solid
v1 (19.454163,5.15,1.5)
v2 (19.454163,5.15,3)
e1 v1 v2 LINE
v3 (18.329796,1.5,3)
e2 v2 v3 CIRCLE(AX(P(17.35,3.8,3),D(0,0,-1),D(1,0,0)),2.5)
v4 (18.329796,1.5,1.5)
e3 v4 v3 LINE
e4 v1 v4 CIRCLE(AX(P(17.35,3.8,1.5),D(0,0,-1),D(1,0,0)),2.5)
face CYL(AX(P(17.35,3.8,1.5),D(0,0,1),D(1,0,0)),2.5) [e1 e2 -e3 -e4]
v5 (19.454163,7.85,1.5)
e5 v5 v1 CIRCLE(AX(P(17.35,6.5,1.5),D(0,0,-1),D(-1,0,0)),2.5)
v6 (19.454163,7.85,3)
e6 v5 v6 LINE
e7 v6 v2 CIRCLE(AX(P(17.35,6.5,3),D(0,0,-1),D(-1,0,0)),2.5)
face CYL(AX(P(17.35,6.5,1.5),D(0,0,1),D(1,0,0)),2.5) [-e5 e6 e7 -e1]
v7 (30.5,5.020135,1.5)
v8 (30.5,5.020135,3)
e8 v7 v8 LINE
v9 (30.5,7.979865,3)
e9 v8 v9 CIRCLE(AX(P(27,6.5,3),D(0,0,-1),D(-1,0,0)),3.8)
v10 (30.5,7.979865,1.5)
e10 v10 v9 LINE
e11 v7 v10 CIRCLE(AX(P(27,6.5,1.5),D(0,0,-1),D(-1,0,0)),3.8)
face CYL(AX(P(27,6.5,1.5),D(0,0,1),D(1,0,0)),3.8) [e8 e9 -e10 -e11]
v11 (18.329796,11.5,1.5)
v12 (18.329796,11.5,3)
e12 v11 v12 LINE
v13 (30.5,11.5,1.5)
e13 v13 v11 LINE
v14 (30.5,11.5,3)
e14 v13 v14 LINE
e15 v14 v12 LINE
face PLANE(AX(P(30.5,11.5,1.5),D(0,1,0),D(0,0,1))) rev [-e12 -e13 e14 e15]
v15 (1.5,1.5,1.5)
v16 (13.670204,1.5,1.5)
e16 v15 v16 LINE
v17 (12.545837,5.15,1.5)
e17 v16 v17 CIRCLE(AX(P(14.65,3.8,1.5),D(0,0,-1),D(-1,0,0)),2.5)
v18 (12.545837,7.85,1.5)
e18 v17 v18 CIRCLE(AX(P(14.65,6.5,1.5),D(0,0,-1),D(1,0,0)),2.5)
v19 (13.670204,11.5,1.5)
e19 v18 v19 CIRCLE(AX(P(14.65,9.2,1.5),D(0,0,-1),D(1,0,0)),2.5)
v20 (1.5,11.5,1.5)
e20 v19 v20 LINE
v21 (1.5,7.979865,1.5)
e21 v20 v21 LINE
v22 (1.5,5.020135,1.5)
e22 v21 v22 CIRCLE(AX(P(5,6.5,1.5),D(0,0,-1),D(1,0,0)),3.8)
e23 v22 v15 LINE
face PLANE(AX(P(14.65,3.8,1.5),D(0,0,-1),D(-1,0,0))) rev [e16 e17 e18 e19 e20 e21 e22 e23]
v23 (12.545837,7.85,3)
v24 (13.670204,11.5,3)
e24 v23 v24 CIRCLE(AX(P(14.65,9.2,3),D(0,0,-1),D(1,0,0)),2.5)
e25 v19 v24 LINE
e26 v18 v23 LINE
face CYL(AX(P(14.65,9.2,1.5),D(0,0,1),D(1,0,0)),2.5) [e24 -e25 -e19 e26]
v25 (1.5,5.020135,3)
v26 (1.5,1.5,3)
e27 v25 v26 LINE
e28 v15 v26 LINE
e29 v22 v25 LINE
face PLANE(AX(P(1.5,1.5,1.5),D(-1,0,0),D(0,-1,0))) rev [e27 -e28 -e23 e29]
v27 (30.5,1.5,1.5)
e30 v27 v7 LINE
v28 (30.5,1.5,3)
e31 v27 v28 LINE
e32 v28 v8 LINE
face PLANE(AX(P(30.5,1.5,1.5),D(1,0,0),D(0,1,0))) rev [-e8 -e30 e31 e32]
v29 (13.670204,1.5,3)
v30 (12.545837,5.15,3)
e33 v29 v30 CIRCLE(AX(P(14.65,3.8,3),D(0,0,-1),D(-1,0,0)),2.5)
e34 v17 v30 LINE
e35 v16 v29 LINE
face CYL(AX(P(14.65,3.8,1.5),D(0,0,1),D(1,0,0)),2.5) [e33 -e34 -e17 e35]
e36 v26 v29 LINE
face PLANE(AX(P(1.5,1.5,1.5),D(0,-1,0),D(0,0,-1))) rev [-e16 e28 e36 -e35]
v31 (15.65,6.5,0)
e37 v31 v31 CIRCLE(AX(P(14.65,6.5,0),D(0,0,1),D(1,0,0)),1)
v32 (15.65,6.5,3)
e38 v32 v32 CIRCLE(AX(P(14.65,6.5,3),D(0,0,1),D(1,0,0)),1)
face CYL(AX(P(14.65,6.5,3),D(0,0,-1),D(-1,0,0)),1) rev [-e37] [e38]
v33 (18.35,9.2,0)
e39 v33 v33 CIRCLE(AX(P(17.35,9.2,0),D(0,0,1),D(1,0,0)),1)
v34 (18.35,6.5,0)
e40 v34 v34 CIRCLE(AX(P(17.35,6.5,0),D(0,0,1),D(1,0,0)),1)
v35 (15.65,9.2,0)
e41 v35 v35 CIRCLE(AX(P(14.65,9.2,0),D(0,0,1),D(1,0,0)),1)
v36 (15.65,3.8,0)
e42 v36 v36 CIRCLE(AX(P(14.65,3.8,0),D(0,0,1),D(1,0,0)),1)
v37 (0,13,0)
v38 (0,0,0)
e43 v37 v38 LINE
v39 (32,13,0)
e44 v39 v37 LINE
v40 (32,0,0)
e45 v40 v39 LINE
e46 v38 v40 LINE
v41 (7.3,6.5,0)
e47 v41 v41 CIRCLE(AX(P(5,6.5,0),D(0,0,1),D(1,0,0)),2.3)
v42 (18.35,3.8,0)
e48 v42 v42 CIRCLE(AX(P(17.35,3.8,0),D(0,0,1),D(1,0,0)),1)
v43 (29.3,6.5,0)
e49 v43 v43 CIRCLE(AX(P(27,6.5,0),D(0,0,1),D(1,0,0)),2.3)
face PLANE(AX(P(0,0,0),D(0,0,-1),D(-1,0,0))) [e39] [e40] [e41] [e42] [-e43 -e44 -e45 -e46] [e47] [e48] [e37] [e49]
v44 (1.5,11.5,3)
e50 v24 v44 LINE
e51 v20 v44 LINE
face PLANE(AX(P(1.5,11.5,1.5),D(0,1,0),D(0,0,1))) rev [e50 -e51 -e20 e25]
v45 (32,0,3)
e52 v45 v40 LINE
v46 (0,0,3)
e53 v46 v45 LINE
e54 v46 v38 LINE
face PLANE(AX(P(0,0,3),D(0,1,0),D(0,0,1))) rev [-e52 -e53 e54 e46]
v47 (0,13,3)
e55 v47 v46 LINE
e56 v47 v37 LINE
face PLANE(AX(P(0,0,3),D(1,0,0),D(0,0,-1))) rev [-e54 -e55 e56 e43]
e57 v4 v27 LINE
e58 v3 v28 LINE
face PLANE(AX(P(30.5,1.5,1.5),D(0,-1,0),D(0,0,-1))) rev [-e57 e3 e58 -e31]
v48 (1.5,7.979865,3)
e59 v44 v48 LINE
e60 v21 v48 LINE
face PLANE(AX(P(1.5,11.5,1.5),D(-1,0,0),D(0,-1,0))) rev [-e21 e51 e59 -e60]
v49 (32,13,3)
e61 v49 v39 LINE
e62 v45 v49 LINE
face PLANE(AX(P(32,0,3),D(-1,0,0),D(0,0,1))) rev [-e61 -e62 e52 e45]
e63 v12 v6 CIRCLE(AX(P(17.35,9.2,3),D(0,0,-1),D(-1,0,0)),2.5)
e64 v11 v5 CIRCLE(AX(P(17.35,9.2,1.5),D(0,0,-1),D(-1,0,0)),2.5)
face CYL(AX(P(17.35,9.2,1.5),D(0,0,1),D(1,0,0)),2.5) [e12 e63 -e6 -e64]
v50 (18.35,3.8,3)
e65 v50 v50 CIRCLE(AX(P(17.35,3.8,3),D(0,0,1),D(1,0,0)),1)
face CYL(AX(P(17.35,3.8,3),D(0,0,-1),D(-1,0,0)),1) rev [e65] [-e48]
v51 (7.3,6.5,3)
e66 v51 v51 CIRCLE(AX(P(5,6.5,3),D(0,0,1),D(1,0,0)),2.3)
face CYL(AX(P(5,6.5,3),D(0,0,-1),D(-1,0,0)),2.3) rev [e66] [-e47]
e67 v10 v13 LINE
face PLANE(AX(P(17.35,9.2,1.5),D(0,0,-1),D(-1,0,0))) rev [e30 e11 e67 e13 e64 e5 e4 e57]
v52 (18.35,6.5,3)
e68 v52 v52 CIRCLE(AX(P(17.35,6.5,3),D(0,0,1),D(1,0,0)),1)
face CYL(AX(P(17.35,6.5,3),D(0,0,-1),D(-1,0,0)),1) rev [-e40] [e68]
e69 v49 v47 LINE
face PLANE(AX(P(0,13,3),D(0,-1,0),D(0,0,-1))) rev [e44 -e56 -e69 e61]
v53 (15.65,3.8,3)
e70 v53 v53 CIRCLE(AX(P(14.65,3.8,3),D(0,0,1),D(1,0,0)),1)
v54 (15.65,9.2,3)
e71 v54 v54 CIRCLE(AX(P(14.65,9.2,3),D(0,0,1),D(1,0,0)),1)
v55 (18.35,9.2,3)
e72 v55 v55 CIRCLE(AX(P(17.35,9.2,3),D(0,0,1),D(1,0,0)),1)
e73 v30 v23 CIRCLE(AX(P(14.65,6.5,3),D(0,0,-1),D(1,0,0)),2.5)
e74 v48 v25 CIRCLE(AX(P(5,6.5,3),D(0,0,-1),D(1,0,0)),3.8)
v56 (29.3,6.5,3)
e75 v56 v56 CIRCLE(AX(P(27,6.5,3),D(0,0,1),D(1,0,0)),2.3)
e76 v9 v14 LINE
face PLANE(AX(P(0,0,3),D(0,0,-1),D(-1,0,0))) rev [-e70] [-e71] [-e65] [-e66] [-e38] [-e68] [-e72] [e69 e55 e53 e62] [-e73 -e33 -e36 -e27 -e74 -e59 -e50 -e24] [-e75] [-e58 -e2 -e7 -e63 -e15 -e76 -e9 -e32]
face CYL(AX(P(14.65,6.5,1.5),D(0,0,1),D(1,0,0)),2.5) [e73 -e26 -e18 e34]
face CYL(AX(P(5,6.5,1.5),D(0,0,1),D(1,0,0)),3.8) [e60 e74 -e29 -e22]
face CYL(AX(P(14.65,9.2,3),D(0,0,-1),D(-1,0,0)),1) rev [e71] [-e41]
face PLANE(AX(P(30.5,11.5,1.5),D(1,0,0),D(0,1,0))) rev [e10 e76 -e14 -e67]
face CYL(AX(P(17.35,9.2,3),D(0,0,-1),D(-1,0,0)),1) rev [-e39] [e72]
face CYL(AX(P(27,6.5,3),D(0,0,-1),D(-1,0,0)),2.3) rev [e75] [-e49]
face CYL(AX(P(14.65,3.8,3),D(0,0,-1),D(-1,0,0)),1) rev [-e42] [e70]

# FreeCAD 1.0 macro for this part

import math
import FreeCAD as App
import Part
import Sketcher
Q = App.Units.Quantity

doc = App.newDocument("Part")
params = doc.addObject("Spreadsheet::Sheet", "Params")
for row, (alias, value) in enumerate([
    ("sketch1_diameter", "2 mm"),
    ("sketch1_diameter2", "4.6 mm"),
    ("sketch1_width", "32 mm"),
    ("sketch1_height", "13 mm"),
    ("pad1_length", "3 mm"),
    ("sketch2_radius", "3.8 mm"),
    ("sketch2_radius2", "2.5 mm"),
    ("pocket1_length", "1.5 mm"),
], start=1):
    params.set(f"A{row}", alias)
    params.set(f"B{row}", "=" + value)
    params.setAlias(f"B{row}", alias)

body = doc.addObject("PartDesign::Body", "Body")

sketch1 = doc.addObject("Sketcher::SketchObject", "Sketch")
body.addObject(sketch1)
sketch1.AttachmentSupport = (doc.XY_Plane, [""])
sketch1.MapMode = "FlatFace"
sketch1.addGeometry([
    Part.LineSegment(App.Vector(0, 13, 0), App.Vector(0, 0, 0)),
    Part.LineSegment(App.Vector(0, 0, 0), App.Vector(32, 0, 0)),
    Part.LineSegment(App.Vector(32, 0, 0), App.Vector(32, 13, 0)),
    Part.LineSegment(App.Vector(32, 13, 0), App.Vector(0, 13, 0)),
    Part.Circle(App.Vector(14.7, 3.8, 0), App.Vector(0, 0, 1), 1),
    Part.Circle(App.Vector(17.4, 3.8, 0), App.Vector(0, 0, 1), 1),
    Part.Circle(App.Vector(5, 6.5, 0), App.Vector(0, 0, 1), 2.3),
    Part.Circle(App.Vector(14.7, 6.5, 0), App.Vector(0, 0, 1), 1),
    Part.Circle(App.Vector(14.7, 9.2, 0), App.Vector(0, 0, 1), 1),
    Part.Circle(App.Vector(17.4, 6.5, 0), App.Vector(0, 0, 1), 1),
    Part.Circle(App.Vector(27, 6.5, 0), App.Vector(0, 0, 1), 2.3),
    Part.Circle(App.Vector(17.4, 9.2, 0), App.Vector(0, 0, 1), 1),
], False)
sketch1.addConstraint([
    Sketcher.Constraint("Coincident", 0, 2, 1, 1),
    Sketcher.Constraint("Coincident", 1, 2, 2, 1),
    Sketcher.Constraint("Coincident", 2, 2, 3, 1),
    Sketcher.Constraint("Coincident", 3, 2, 0, 1),
    Sketcher.Constraint("Vertical", 0),
    Sketcher.Constraint("Horizontal", 1),
    Sketcher.Constraint("Vertical", 2),
    Sketcher.Constraint("Horizontal", 3),
    Sketcher.Constraint("Coincident", 0, 2, -1, 1),
    Sketcher.Constraint("Equal", 4, 5),
    Sketcher.Constraint("Equal", 5, 7),
    Sketcher.Constraint("Equal", 7, 8),
    Sketcher.Constraint("Equal", 8, 9),
    Sketcher.Constraint("Equal", 6, 10),
    Sketcher.Constraint("Equal", 9, 11),
    Sketcher.Constraint("Horizontal", 4, 3, 5, 3),
    Sketcher.Constraint("Horizontal", 6, 3, 7, 3),
    Sketcher.Constraint("Horizontal", 7, 3, 9, 3),
    Sketcher.Constraint("Horizontal", 9, 3, 10, 3),
    Sketcher.Constraint("Horizontal", 8, 3, 11, 3),
    Sketcher.Constraint("Vertical", 4, 3, 7, 3),
    Sketcher.Constraint("Vertical", 7, 3, 8, 3),
    Sketcher.Constraint("Vertical", 5, 3, 9, 3),
    Sketcher.Constraint("Vertical", 9, 3, 11, 3),
    Sketcher.Constraint("Diameter", 4, Q("2 mm")),
    Sketcher.Constraint("Diameter", 6, Q("4.6 mm")),
    Sketcher.Constraint("DistanceX", 1, 1, 1, 2, Q("32 mm")),
    Sketcher.Constraint("DistanceY", 0, 2, 0, 1, Q("13 mm")),
    Sketcher.Constraint("DistanceX", -1, 1, 6, 3, Q("5 mm")),
    Sketcher.Constraint("DistanceX", -1, 1, 10, 3, Q("27 mm")),
    Sketcher.Constraint("DistanceY", -1, 1, 4, 3, Q("3.8 mm")),
    Sketcher.Constraint("DistanceY", -1, 1, 6, 3, Q("6.5 mm")),
    Sketcher.Constraint("DistanceY", -1, 1, 8, 3, Q("9.2 mm")),
    Sketcher.Constraint("DistanceX", 4, 3, 5, 3, Q("2.7 mm")),
    Sketcher.Constraint("DistanceX", -1, 1, 4, 3, Q("14.65 mm")),
])
sketch1.setExpression("Constraints[24]", "Params.sketch1_diameter")
sketch1.setExpression("Constraints[25]", "Params.sketch1_diameter2")
sketch1.setExpression("Constraints[26]", "Params.sketch1_width")
sketch1.setExpression("Constraints[27]", "Params.sketch1_height")
pad1 = doc.addObject("PartDesign::Pad", "Pad")
body.addObject(pad1)
pad1.Profile = sketch1
pad1.setExpression("Length", "Params.pad1_length")

sketch2 = doc.addObject("Sketcher::SketchObject", "Sketch001")
body.addObject(sketch2)
sketch2.AttachmentSupport = (doc.XY_Plane, [""])
sketch2.MapMode = "FlatFace"
sketch2.AttachmentOffset = App.Placement(App.Vector(0, 0, 3), App.Rotation())
sketch2.addGeometry([
    Part.LineSegment(App.Vector(13.7, 11.5, 0), App.Vector(1.5, 11.5, 0)),
    Part.LineSegment(App.Vector(1.5, 11.5, 0), App.Vector(1.5, 8, 0)),
    Part.ArcOfCircle(Part.Circle(App.Vector(5, 6.5, 0), App.Vector(0, 0, 1), 3.8), math.radians(-157), math.radians(157)),
    Part.LineSegment(App.Vector(1.5, 5, 0), App.Vector(1.5, 1.5, 0)),
    Part.LineSegment(App.Vector(1.5, 1.5, 0), App.Vector(13.7, 1.5, 0)),
    Part.ArcOfCircle(Part.Circle(App.Vector(14.7, 3.8, 0), App.Vector(0, 0, 1), 2.5), math.radians(147), math.radians(247)),
    Part.ArcOfCircle(Part.Circle(App.Vector(14.6, 6.5, 0), App.Vector(0, 0, 1), 2.5), math.radians(147), math.radians(213)),
    Part.ArcOfCircle(Part.Circle(App.Vector(14.7, 9.2, 0), App.Vector(0, 0, 1), 2.5), math.radians(113), math.radians(213)),
    Part.LineSegment(App.Vector(18.3, 1.5, 0), App.Vector(30.5, 1.5, 0)),
    Part.LineSegment(App.Vector(30.5, 1.5, 0), App.Vector(30.5, 5, 0)),
    Part.ArcOfCircle(Part.Circle(App.Vector(27, 6.5, 0), App.Vector(0, 0, 1), 3.8), math.radians(23), math.radians(337)),
    Part.LineSegment(App.Vector(30.5, 8, 0), App.Vector(30.5, 11.5, 0)),
    Part.LineSegment(App.Vector(30.5, 11.5, 0), App.Vector(18.3, 11.5, 0)),
    Part.ArcOfCircle(Part.Circle(App.Vector(17.4, 9.2, 0), App.Vector(0, 0, 1), 2.5), math.radians(-33), math.radians(67)),
    Part.ArcOfCircle(Part.Circle(App.Vector(17.4, 6.5, 0), App.Vector(0, 0, 1), 2.5), math.radians(-33), math.radians(33)),
    Part.ArcOfCircle(Part.Circle(App.Vector(17.4, 3.8, 0), App.Vector(0, 0, 1), 2.5), math.radians(-67), math.radians(33)),
], False)
sketch2.addConstraint([
    Sketcher.Constraint("Coincident", 0, 2, 1, 1),
    Sketcher.Constraint("Coincident", 1, 2, 2, 2),
    Sketcher.Constraint("Coincident", 2, 1, 3, 1),
    Sketcher.Constraint("Coincident", 3, 2, 4, 1),
    Sketcher.Constraint("Coincident", 4, 2, 5, 2),
    Sketcher.Constraint("Coincident", 5, 1, 6, 2),
    Sketcher.Constraint("Coincident", 6, 1, 7, 2),
    Sketcher.Constraint("Coincident", 7, 1, 0, 1),
    Sketcher.Constraint("Coincident", 8, 2, 9, 1),
    Sketcher.Constraint("Coincident", 9, 2, 10, 2),
    Sketcher.Constraint("Coincident", 10, 1, 11, 1),
    Sketcher.Constraint("Coincident", 11, 2, 12, 1),
    Sketcher.Constraint("Coincident", 12, 2, 13, 2),
    Sketcher.Constraint("Coincident", 13, 1, 14, 2),
    Sketcher.Constraint("Coincident", 14, 1, 15, 2),
    Sketcher.Constraint("Coincident", 15, 1, 8, 1),
    Sketcher.Constraint("Horizontal", 0),
    Sketcher.Constraint("Vertical", 1),
    Sketcher.Constraint("Vertical", 3),
    Sketcher.Constraint("Horizontal", 4),
    Sketcher.Constraint("Horizontal", 8),
    Sketcher.Constraint("Vertical", 9),
    Sketcher.Constraint("Vertical", 11),
    Sketcher.Constraint("Horizontal", 12),
    Sketcher.Constraint("Equal", 5, 6),
    Sketcher.Constraint("Equal", 6, 7),
    Sketcher.Constraint("Equal", 2, 10),
    Sketcher.Constraint("Equal", 7, 13),
    Sketcher.Constraint("Equal", 13, 14),
    Sketcher.Constraint("Equal", 14, 15),
    Sketcher.Constraint("Horizontal", 2, 3, 6, 3),
    Sketcher.Constraint("Horizontal", 6, 3, 10, 3),
    Sketcher.Constraint("Horizontal", 7, 3, 13, 3),
    Sketcher.Constraint("Horizontal", 10, 3, 14, 3),
    Sketcher.Constraint("Horizontal", 5, 3, 15, 3),
    Sketcher.Constraint("Horizontal", 4, 2, 8, 2),
    Sketcher.Constraint("Horizontal", 2, 1, 9, 2),
    Sketcher.Constraint("Horizontal", 1, 2, 10, 1),
    Sketcher.Constraint("Horizontal", 7, 1, 11, 2),
    Sketcher.Constraint("Horizontal", 6, 1, 13, 1),
    Sketcher.Constraint("Horizontal", 5, 1, 14, 1),
    Sketcher.Constraint("Vertical", 5, 3, 6, 3),
    Sketcher.Constraint("Vertical", 6, 3, 7, 3),
    Sketcher.Constraint("Vertical", 1, 2, 2, 1),
    Sketcher.Constraint("Vertical", 5, 1, 6, 1),
    Sketcher.Constraint("Vertical", 4, 2, 7, 1),
    Sketcher.Constraint("Equal", 4, 8),
    Sketcher.Constraint("Radius", 2, Q("3.8 mm")),
    Sketcher.Constraint("Radius", 5, Q("2.5 mm")),
    Sketcher.Constraint("DistanceX", -1, 1, 2, 3, Q("5 mm")),
    Sketcher.Constraint("DistanceX", -1, 1, 10, 3, Q("27 mm")),
    Sketcher.Constraint("DistanceY", 2, 3, 0, 2, Q("5 mm")),
    Sketcher.Constraint("DistanceY", -1, 1, 2, 3, Q("6.5 mm")),
    Sketcher.Constraint("DistanceY", -1, 1, 5, 3, Q("3.8 mm")),
    Sketcher.Constraint("DistanceX", -1, 1, 0, 2, Q("1.5 mm")),
    Sketcher.Constraint("DistanceX", 7, 3, 13, 3, Q("2.7 mm")),
])
sketch2.setExpression("Constraints[47]", "Params.sketch2_radius")
sketch2.setExpression("Constraints[48]", "Params.sketch2_radius2")
pocket1 = doc.addObject("PartDesign::Pocket", "Pocket")
body.addObject(pocket1)
pocket1.Profile = sketch2
pocket1.setExpression("Length", "Params.pocket1_length")

doc.recompute()
